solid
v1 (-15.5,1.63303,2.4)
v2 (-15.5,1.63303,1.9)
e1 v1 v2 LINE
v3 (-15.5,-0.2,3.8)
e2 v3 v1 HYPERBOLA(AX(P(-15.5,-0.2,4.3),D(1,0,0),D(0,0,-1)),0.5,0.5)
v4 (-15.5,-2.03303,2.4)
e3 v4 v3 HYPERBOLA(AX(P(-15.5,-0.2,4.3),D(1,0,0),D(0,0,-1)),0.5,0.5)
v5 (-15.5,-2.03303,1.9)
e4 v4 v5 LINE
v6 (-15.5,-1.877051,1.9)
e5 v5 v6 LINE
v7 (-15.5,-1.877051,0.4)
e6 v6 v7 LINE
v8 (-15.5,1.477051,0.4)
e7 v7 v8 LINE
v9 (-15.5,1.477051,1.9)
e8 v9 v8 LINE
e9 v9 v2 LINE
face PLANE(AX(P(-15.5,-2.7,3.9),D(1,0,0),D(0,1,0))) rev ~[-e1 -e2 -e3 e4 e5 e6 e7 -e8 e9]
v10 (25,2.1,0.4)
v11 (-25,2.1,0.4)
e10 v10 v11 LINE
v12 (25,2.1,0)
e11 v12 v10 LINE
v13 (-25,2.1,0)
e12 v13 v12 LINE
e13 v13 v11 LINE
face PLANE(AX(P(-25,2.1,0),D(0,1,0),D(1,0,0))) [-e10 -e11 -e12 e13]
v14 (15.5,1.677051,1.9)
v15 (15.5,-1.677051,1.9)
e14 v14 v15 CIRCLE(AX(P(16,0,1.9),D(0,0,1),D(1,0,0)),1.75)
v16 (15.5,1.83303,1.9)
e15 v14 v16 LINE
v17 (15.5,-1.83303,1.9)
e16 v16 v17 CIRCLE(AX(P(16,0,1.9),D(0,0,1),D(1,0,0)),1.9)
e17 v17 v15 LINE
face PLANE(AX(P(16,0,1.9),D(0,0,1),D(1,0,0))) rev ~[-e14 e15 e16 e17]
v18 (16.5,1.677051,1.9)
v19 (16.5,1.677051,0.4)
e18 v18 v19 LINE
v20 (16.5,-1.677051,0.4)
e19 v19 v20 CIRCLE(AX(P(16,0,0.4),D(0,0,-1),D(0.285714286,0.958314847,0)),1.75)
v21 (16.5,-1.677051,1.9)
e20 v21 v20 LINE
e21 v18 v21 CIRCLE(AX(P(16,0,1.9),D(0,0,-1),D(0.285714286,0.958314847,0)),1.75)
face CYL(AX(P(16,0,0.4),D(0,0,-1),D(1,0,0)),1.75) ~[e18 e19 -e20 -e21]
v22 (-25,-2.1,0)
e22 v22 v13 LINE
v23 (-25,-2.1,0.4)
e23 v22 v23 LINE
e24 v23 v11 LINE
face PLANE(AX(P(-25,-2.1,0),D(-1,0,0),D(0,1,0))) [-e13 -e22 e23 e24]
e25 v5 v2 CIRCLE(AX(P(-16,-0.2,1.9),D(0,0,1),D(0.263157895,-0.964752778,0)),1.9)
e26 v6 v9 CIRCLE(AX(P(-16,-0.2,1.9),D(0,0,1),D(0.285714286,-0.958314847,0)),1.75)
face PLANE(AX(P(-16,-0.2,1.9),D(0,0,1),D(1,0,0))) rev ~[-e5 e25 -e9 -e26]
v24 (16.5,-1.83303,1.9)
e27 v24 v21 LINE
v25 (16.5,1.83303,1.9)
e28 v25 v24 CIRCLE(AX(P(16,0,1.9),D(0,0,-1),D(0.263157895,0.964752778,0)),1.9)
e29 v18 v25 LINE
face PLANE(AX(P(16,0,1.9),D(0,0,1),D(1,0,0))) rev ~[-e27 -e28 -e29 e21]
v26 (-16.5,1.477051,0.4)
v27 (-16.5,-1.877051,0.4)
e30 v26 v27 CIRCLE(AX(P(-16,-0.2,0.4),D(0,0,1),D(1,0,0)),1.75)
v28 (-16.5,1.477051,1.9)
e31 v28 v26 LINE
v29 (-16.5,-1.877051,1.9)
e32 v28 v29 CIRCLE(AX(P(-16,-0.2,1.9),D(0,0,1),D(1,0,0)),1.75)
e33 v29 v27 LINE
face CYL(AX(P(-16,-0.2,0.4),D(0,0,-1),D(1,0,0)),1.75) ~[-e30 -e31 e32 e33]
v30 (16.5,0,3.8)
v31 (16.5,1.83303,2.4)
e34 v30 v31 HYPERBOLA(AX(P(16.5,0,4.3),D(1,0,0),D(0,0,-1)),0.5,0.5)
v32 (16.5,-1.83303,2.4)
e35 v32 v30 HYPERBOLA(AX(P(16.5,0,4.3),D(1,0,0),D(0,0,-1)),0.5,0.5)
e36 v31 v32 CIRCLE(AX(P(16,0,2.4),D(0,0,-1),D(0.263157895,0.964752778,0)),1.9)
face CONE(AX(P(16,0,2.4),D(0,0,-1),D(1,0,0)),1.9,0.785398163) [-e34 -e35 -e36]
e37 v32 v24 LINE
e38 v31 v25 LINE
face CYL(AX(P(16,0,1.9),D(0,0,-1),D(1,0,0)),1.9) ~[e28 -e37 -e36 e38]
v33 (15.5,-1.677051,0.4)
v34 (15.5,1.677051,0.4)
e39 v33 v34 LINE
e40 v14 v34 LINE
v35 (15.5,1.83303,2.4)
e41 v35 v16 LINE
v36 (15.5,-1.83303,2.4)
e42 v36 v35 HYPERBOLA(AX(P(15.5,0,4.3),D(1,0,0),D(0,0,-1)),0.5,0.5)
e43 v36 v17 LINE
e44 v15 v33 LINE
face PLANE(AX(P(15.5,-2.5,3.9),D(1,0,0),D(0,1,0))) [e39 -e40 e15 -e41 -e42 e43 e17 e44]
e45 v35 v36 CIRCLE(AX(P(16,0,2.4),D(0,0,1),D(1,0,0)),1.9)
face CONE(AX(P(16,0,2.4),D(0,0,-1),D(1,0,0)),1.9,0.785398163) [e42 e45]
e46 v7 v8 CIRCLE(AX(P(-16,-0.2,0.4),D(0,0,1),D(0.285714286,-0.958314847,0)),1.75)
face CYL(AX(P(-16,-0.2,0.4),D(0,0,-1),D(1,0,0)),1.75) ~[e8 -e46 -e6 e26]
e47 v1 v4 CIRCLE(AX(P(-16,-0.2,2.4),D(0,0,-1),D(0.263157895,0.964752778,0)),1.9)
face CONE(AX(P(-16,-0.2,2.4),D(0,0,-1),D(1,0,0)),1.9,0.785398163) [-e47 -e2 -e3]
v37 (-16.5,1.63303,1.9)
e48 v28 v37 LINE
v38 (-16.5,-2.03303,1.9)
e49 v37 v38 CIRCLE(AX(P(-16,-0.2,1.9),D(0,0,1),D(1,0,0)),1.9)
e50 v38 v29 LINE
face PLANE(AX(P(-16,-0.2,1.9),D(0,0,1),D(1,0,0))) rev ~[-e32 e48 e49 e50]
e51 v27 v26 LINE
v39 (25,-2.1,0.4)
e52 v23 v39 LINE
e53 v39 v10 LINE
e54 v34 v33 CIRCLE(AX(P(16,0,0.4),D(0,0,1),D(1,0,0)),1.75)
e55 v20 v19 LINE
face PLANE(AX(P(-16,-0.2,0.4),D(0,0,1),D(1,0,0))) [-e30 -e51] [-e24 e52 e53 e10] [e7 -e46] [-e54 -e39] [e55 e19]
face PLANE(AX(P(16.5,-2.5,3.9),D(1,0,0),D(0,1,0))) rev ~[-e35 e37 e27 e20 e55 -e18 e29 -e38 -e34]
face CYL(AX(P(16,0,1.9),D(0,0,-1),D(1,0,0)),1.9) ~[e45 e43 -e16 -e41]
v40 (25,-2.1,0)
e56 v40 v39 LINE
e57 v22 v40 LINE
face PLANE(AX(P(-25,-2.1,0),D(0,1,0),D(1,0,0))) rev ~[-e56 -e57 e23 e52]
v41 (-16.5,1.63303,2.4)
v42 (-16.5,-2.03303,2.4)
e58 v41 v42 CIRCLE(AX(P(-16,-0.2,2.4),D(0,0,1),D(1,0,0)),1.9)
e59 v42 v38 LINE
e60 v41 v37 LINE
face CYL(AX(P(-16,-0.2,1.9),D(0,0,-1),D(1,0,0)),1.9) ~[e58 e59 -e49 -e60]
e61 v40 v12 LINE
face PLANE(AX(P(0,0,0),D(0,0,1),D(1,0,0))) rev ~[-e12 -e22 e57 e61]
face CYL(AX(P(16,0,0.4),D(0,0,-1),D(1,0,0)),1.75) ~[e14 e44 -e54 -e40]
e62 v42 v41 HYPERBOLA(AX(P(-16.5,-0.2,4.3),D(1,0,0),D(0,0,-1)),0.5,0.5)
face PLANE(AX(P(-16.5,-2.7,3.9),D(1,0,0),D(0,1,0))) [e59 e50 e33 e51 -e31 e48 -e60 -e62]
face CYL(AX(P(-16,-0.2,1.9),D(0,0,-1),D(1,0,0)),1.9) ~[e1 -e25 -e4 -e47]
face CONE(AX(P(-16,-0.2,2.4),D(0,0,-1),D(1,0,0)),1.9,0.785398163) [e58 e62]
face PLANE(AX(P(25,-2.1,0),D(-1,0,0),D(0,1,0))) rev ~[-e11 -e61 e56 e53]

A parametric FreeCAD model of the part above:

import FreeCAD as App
import Part
import Sketcher

V = App.Vector


def edges_at(feature, points):
    """Names of the edges that pass closest to the given points."""
    edges = feature.Shape.Edges
    near = lambda p: min(range(len(edges)), key=lambda i: edges[i].distToShape(Part.Vertex(*p))[0])
    return sorted({f"Edge{near(p) + 1}" for p in points})

doc = App.newDocument("Part")
body = doc.addObject("PartDesign::Body", "Body")

# Sketch on XY plane
sketch1 = doc.addObject("Sketcher::SketchObject", "Sketch")
body.addObject(sketch1)
sketch1.AttachmentSupport = (doc.XY_Plane, [""])
sketch1.MapMode = "FlatFace"
sketch1.addGeometry([
    Part.LineSegment(V(-25, 2.1, 0), V(-25, -2.1, 0)),
    Part.LineSegment(V(-25, -2.1, 0), V(25, -2.1, 0)),
    Part.LineSegment(V(25, -2.1, 0), V(25, 2.1, 0)),
    Part.LineSegment(V(25, 2.1, 0), V(-25, 2.1, 0)),
], False)
sketch1.addConstraint([
    Sketcher.Constraint("Coincident", 0, 2, 1, 1),
    Sketcher.Constraint("Coincident", 1, 2, 2, 1),
    Sketcher.Constraint("Coincident", 2, 2, 3, 1),
    Sketcher.Constraint("Coincident", 3, 2, 0, 1),
    Sketcher.Constraint("Vertical", 0),
    Sketcher.Constraint("Horizontal", 1),
    Sketcher.Constraint("Vertical", 2),
    Sketcher.Constraint("Horizontal", 3),
    Sketcher.Constraint("Symmetric", 0, 2, 2, 2, -1, 1),
    Sketcher.Constraint("DistanceX", 1, 1, 1, 2, 50.0),
    Sketcher.Constraint("DistanceY", 0, 2, 0, 1, 4.2),
])
pad1 = doc.addObject("PartDesign::Pad", "Pad")
body.addObject(pad1)
pad1.Profile = sketch1
pad1.Length = 0.4

# Sketch on XY plane
sketch2 = doc.addObject("Sketcher::SketchObject", "Sketch001")
body.addObject(sketch2)
sketch2.AttachmentSupport = (doc.XY_Plane, [""])
sketch2.MapMode = "FlatFace"
sketch2.AttachmentOffset = App.Placement(V(0, 0, 0.4), App.Rotation())
sketch2.addGeometry([
    Part.Circle(V(-16, -0.2, 0), V(0, 0, 1), 1.8),
    Part.Circle(V(16, 0, 0), V(0, 0, 1), 1.8),
], False)
sketch2.addConstraint([
    Sketcher.Constraint("Equal", 0, 1),
    Sketcher.Constraint("PointOnObject", 1, 3, -1),
    Sketcher.Constraint("Diameter", 0, 3.5),
    Sketcher.Constraint("DistanceX", 0, 3, -1, 1, 16.0),
    Sketcher.Constraint("DistanceX", -1, 1, 1, 3, 16.0),
    Sketcher.Constraint("DistanceY", 0, 3, -1, 1, 0.2),
])
pad2 = doc.addObject("PartDesign::Pad", "Pad001")
body.addObject(pad2)
pad2.Profile = sketch2
pad2.Length = 1.5

# Sketch on XY plane
sketch3 = doc.addObject("Sketcher::SketchObject", "Sketch002")
body.addObject(sketch3)
sketch3.AttachmentSupport = (doc.XY_Plane, [""])
sketch3.MapMode = "FlatFace"
sketch3.AttachmentOffset = App.Placement(V(0, 0, 1.9), App.Rotation())
sketch3.addGeometry([
    Part.Circle(V(-16, -0.2, 0), V(0, 0, 1), 1.9),
    Part.Circle(V(16, 0, 0), V(0, 0, 1), 1.9),
], False)
sketch3.addConstraint([
    Sketcher.Constraint("Equal", 0, 1),
    Sketcher.Constraint("PointOnObject", 1, 3, -1),
    Sketcher.Constraint("Diameter", 0, 3.8),
    Sketcher.Constraint("DistanceX", 0, 3, -1, 1, 16.0),
    Sketcher.Constraint("DistanceX", -1, 1, 1, 3, 16.0),
    Sketcher.Constraint("DistanceY", 0, 3, -1, 1, 0.2),
])
pad3 = doc.addObject("PartDesign::Pad", "Pad002")
body.addObject(pad3)
pad3.Profile = sketch3
pad3.Length = 2
doc.recompute()

chamfer = doc.addObject("PartDesign::Chamfer", "Chamfer")
body.addObject(chamfer)
chamfer.Base = (pad3, edges_at(pad3, [(-17.9, -0.2, 3.9), (14.1, 0, 3.9)]))
chamfer.Size = 1.5

# Sketch on XY plane
sketch4 = doc.addObject("Sketcher::SketchObject", "Sketch003")
body.addObject(sketch4)
sketch4.AttachmentSupport = (doc.XY_Plane, [""])
sketch4.MapMode = "FlatFace"
sketch4.AttachmentOffset = App.Placement(V(0, 0, 3.9), App.Rotation())
sketch4.addGeometry([
    Part.LineSegment(V(-16.5, 2.3, 0), V(-16.5, -2.7, 0)),  # 0
    Part.LineSegment(V(-16.5, -2.7, 0), V(-15.5, -2.7, 0)),  # 1
    Part.LineSegment(V(-15.5, -2.7, 0), V(-15.5, 2.3, 0)),  # 2
    Part.LineSegment(V(-15.5, 2.3, 0), V(-16.5, 2.3, 0)),  # 3
    Part.LineSegment(V(15.5, 2.5, 0), V(15.5, -2.5, 0)),  # 4
    Part.LineSegment(V(15.5, -2.5, 0), V(16.5, -2.5, 0)),  # 5
    Part.LineSegment(V(16.5, -2.5, 0), V(16.5, 2.5, 0)),  # 6
    Part.LineSegment(V(16.5, 2.5, 0), V(15.5, 2.5, 0)),  # 7
], False)
sketch4.addConstraint([
    Sketcher.Constraint("Coincident", 0, 2, 1, 1),
    Sketcher.Constraint("Coincident", 1, 2, 2, 1),
    Sketcher.Constraint("Coincident", 2, 2, 3, 1),
    Sketcher.Constraint("Coincident", 3, 2, 0, 1),
    Sketcher.Constraint("Coincident", 4, 2, 5, 1),
    Sketcher.Constraint("Coincident", 5, 2, 6, 1),
    Sketcher.Constraint("Coincident", 6, 2, 7, 1),
    Sketcher.Constraint("Coincident", 7, 2, 4, 1),
    Sketcher.Constraint("Vertical", 0),
    Sketcher.Constraint("Horizontal", 1),
    Sketcher.Constraint("Vertical", 2),
    Sketcher.Constraint("Horizontal", 3),
    Sketcher.Constraint("Vertical", 4),
    Sketcher.Constraint("Horizontal", 5),
    Sketcher.Constraint("Vertical", 6),
    Sketcher.Constraint("Horizontal", 7),
    Sketcher.Constraint("Equal", 3, 5),
    Sketcher.Constraint("Equal", 2, 4),
    Sketcher.Constraint("DistanceX", 1, 1, 1, 2, 1.0),
    Sketcher.Constraint("DistanceY", 0, 2, 0, 1, 5.0),
    Sketcher.Constraint("DistanceX", 1, 2, 4, 2, 31.0),
    Sketcher.Constraint("DistanceX", 0, 2, -1, 1, 16.5),
    Sketcher.Constraint("DistanceY", 0, 2, -1, 1, 2.7),
    Sketcher.Constraint("DistanceY", 4, 2, -1, 1, 2.5),
])
pocket1 = doc.addObject("PartDesign::Pocket", "Pocket")
body.addObject(pocket1)
pocket1.Profile = sketch4
pocket1.Length = 3.5

doc.recompute()
